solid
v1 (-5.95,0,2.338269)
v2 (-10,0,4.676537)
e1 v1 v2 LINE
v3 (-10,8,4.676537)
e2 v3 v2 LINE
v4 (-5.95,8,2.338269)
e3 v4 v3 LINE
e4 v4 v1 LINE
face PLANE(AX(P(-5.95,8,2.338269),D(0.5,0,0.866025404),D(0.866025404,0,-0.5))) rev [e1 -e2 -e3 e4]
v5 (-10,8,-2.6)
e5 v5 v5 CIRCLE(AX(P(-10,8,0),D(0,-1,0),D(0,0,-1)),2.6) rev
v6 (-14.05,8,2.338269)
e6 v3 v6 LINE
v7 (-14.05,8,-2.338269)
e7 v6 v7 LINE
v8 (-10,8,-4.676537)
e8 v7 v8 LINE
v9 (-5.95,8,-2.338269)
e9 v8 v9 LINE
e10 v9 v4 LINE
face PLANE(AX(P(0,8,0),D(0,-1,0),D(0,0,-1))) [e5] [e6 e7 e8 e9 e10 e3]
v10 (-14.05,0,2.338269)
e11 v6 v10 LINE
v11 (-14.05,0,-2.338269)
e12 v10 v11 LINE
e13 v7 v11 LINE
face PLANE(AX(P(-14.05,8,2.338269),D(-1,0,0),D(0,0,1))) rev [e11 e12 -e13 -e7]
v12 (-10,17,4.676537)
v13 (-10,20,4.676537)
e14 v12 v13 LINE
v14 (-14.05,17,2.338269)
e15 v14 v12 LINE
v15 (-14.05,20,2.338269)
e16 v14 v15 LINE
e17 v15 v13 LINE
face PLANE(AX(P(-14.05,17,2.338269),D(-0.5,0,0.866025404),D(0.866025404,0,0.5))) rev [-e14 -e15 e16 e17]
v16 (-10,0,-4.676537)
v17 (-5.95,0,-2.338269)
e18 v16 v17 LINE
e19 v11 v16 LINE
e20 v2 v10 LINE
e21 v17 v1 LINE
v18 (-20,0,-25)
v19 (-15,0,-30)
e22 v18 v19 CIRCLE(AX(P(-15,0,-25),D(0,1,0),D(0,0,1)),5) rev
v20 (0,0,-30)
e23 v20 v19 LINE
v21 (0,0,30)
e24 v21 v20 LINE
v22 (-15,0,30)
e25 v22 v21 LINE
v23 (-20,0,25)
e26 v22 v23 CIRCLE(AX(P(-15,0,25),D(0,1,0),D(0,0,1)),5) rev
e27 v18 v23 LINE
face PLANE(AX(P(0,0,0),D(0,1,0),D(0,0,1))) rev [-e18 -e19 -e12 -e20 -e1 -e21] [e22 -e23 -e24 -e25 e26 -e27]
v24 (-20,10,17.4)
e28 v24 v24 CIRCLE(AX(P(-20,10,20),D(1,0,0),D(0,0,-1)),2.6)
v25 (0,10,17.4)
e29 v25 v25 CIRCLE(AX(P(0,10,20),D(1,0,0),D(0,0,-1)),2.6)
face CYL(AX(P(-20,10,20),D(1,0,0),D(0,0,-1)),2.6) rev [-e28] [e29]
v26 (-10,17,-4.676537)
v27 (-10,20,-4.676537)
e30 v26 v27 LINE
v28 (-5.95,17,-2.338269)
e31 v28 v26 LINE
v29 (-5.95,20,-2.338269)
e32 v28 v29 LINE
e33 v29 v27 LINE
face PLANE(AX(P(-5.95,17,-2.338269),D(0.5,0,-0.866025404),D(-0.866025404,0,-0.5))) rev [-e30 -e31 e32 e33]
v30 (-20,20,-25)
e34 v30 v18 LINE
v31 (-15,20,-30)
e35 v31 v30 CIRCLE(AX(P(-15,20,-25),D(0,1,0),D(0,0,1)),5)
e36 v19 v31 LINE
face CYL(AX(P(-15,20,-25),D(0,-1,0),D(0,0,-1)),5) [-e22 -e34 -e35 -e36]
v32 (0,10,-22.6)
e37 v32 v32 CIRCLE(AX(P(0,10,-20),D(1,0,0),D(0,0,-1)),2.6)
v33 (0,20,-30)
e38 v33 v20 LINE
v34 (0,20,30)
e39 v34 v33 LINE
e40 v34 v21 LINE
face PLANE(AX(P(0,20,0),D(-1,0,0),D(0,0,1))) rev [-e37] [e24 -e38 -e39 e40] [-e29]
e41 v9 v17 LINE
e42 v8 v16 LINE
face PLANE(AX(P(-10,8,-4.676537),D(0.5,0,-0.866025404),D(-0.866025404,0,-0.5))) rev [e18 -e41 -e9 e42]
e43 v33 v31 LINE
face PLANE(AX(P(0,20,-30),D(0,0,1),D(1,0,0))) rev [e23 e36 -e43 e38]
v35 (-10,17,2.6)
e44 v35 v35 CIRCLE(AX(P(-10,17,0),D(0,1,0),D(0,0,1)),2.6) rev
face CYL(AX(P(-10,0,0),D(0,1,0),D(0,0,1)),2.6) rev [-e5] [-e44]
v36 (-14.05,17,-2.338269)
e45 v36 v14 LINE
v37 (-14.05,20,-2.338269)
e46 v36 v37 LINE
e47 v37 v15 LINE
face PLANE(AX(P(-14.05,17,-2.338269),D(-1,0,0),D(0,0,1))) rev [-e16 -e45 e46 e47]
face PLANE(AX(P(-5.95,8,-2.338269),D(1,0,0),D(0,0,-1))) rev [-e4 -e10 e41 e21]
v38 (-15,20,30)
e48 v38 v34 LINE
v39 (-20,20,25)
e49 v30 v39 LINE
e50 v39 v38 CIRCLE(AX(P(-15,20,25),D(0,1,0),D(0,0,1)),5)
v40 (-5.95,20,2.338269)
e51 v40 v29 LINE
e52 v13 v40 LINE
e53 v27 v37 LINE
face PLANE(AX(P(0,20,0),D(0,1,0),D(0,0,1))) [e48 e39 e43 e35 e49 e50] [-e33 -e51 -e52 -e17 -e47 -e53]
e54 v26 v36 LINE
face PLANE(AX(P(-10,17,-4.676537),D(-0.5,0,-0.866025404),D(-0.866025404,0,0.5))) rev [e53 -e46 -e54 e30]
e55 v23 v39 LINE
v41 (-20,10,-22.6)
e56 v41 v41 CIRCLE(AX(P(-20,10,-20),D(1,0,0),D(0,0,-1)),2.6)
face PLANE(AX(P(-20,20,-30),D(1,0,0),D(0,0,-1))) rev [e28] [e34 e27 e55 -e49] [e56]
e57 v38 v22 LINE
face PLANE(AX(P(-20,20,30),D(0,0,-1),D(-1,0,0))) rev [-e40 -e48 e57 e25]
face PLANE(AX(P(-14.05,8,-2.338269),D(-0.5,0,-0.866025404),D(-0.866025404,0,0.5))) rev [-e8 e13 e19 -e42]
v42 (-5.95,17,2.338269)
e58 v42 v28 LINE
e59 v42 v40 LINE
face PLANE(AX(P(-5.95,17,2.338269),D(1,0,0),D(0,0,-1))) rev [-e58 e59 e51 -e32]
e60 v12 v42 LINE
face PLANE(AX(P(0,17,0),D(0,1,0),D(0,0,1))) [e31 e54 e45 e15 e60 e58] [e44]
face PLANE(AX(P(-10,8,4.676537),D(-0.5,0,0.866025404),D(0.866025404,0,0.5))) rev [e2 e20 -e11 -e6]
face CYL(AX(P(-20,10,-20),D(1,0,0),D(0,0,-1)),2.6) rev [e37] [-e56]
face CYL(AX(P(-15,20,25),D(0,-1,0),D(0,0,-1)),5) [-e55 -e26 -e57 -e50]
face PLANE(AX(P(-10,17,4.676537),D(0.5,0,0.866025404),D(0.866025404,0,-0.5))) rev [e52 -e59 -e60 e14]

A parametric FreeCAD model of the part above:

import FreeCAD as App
import Part
import Sketcher

V = App.Vector
Q = App.Units.Quantity


def edges_at(feature, points):
    """Names of the edges that pass closest to the given points."""
    edges = feature.Shape.Edges
    near = lambda p: min(range(len(edges)), key=lambda i: edges[i].distToShape(Part.Vertex(*p))[0])
    return sorted({f"Edge{near(p) + 1}" for p in points})


def add_polygon(sketch, points):
    """Adds a closed chain of lines whose ends are joined by coincident constraints."""
    first, n = sketch.GeometryCount, len(points)
    for a, b in zip(points, points[1:] + points[:1]):
        sketch.addGeometry(Part.LineSegment(App.Vector(*a, 0), App.Vector(*b, 0)), False)
    for i in range(n):
        sketch.addConstraint(Sketcher.Constraint("Coincident", first + i, 2, first + (i + 1) % n, 1))

doc = App.newDocument("Part")
body = doc.addObject("PartDesign::Body", "Body")

# Sketch on XZ plane
sketch1 = doc.addObject("Sketcher::SketchObject", "Sketch")
body.addObject(sketch1)
sketch1.AttachmentSupport = (doc.XZ_Plane, [""])
sketch1.MapMode = "FlatFace"
add_polygon(sketch1, [(0, -30), (-20, -30), (-20, 30), (0, 30)])  # lines 0-3
sketch1.addConstraint(Sketcher.Constraint("Horizontal", 0))
sketch1.addConstraint(Sketcher.Constraint("Vertical", 1))
sketch1.addConstraint(Sketcher.Constraint("Horizontal", 2))
sketch1.addConstraint(Sketcher.Constraint("Vertical", 3))
sketch1.addConstraint(Sketcher.Constraint("Symmetric", 2, 2, 3, 2, -1, 1))
sketch1.addConstraint(Sketcher.Constraint("DistanceX", 0, 2, 0, 1, Q("20 mm")))
sketch1.addConstraint(Sketcher.Constraint("DistanceY", 1, 1, 1, 2, Q("60 mm")))
pad1 = doc.addObject("PartDesign::Pad", "Pad")
body.addObject(pad1)
pad1.Profile = sketch1
pad1.Length = 20
pad1.Reversed = True

# Sketch on XZ plane
sketch2 = doc.addObject("Sketcher::SketchObject", "Sketch001")
body.addObject(sketch2)
sketch2.AttachmentSupport = (doc.XZ_Plane, [""])
sketch2.MapMode = "FlatFace"
sketch2.AttachmentOffset = App.Placement(V(0, 0, -20), App.Rotation())
sketch2.addGeometry(Part.Circle(V(-10, 0, 0), V(0, 0, 1), 2.6), False)
sketch2.addConstraint(Sketcher.Constraint("PointOnObject", 0, 3, -1))
sketch2.addConstraint(Sketcher.Constraint("Diameter", 0, Q("5.2 mm")))
sketch2.addConstraint(Sketcher.Constraint("DistanceX", 0, 3, -1, 1, Q("10 mm")))
pocket1 = doc.addObject("PartDesign::Pocket", "Pocket")
body.addObject(pocket1)
pocket1.Profile = sketch2
pocket1.Type = "ThroughAll"
pocket1.Reversed = True

# Sketch on XZ plane
sketch3 = doc.addObject("Sketcher::SketchObject", "Sketch002")
body.addObject(sketch3)
sketch3.AttachmentSupport = (doc.XZ_Plane, [""])
sketch3.MapMode = "FlatFace"
sketch3.AttachmentOffset = App.Placement(V(0, 0, -20), App.Rotation())
add_polygon(sketch3, [(-10, -4.7), (-14.1, -2.3), (-14.1, 2.3), (-10, 4.7), (-6, 2.3), (-6, -2.3)])  # lines 0-5
sketch3.addConstraint(Sketcher.Constraint("Vertical", 1))
sketch3.addConstraint(Sketcher.Constraint("Vertical", 4))
sketch3.addConstraint(Sketcher.Constraint("Symmetric", 2, 2, 5, 2, -1))
sketch3.addConstraint(Sketcher.Constraint("Parallel", 0, 3))
sketch3.addConstraint(Sketcher.Constraint("Parallel", 2, 5))
sketch3.addConstraint(Sketcher.Constraint("Horizontal", 1, 2, 3, 2))
sketch3.addConstraint(Sketcher.Constraint("Horizontal", 0, 2, 4, 2))
sketch3.addConstraint(Sketcher.Constraint("Angle", 0, Q("150 deg")))
sketch3.addConstraint(Sketcher.Constraint("DistanceX", 2, 2, -1, 1, Q("10 mm")))
sketch3.addConstraint(Sketcher.Constraint("DistanceX", 1, 2, 3, 2, Q("8.1 mm")))
sketch3.addConstraint(Sketcher.Constraint("DistanceY", 1, 1, 1, 2, Q("4.676537 mm")))
pocket2 = doc.addObject("PartDesign::Pocket", "Pocket001")
body.addObject(pocket2)
pocket2.Profile = sketch3
pocket2.Length = 3
pocket2.Reversed = True

# Sketch on XZ plane
sketch4 = doc.addObject("Sketcher::SketchObject", "Sketch003")
body.addObject(sketch4)
sketch4.AttachmentSupport = (doc.XZ_Plane, [""])
sketch4.MapMode = "FlatFace"
add_polygon(sketch4, [(-10, -4.7), (-6, -2.3), (-6, 2.3), (-10, 4.7), (-14.1, 2.3), (-14.1, -2.3)])  # lines 0-5
sketch4.addConstraint(Sketcher.Constraint("Vertical", 1))
sketch4.addConstraint(Sketcher.Constraint("Vertical", 4))
sketch4.addConstraint(Sketcher.Constraint("Symmetric", 2, 2, 5, 2, -1))
sketch4.addConstraint(Sketcher.Constraint("Parallel", 0, 3))
sketch4.addConstraint(Sketcher.Constraint("Parallel", 2, 5))
sketch4.addConstraint(Sketcher.Constraint("Horizontal", 1, 2, 3, 2))
sketch4.addConstraint(Sketcher.Constraint("Horizontal", 0, 2, 4, 2))
sketch4.addConstraint(Sketcher.Constraint("Angle", 0, Q("30 deg")))
sketch4.addConstraint(Sketcher.Constraint("DistanceX", 2, 2, -1, 1, Q("10 mm")))
sketch4.addConstraint(Sketcher.Constraint("DistanceX", 3, 2, 1, 2, Q("8.1 mm")))
sketch4.addConstraint(Sketcher.Constraint("DistanceY", 1, 1, 1, 2, Q("4.676537 mm")))
pocket3 = doc.addObject("PartDesign::Pocket", "Pocket002")
body.addObject(pocket3)
pocket3.Profile = sketch4
pocket3.Length = 8

# Sketch on YZ plane
sketch5 = doc.addObject("Sketcher::SketchObject", "Sketch004")
body.addObject(sketch5)
sketch5.AttachmentSupport = (doc.YZ_Plane, [""])
sketch5.MapMode = "FlatFace"
sketch5.addGeometry(Part.Circle(V(10, 20, 0), V(0, 0, 1), 2.6), False)
sketch5.addGeometry(Part.Circle(V(10, -20, 0), V(0, 0, 1), 2.6), False)
sketch5.addConstraint(Sketcher.Constraint("Equal", 0, 1))
sketch5.addConstraint(Sketcher.Constraint("Symmetric", 0, 3, 1, 3, -1))
sketch5.addConstraint(Sketcher.Constraint("Diameter", 0, Q("5.2 mm")))
sketch5.addConstraint(Sketcher.Constraint("DistanceX", -1, 1, 0, 3, Q("10 mm")))
sketch5.addConstraint(Sketcher.Constraint("DistanceY", -1, 1, 0, 3, Q("20 mm")))
pocket4 = doc.addObject("PartDesign::Pocket", "Pocket003")
body.addObject(pocket4)
pocket4.Profile = sketch5
pocket4.Type = "ThroughAll"
doc.recompute()

fillet = doc.addObject("PartDesign::Fillet", "Fillet")
body.addObject(fillet)
fillet.Base = (pocket4, edges_at(pocket4, [(-20, 10, 30), (-20, 10, -30)]))
fillet.Radius = 5

doc.recompute()
